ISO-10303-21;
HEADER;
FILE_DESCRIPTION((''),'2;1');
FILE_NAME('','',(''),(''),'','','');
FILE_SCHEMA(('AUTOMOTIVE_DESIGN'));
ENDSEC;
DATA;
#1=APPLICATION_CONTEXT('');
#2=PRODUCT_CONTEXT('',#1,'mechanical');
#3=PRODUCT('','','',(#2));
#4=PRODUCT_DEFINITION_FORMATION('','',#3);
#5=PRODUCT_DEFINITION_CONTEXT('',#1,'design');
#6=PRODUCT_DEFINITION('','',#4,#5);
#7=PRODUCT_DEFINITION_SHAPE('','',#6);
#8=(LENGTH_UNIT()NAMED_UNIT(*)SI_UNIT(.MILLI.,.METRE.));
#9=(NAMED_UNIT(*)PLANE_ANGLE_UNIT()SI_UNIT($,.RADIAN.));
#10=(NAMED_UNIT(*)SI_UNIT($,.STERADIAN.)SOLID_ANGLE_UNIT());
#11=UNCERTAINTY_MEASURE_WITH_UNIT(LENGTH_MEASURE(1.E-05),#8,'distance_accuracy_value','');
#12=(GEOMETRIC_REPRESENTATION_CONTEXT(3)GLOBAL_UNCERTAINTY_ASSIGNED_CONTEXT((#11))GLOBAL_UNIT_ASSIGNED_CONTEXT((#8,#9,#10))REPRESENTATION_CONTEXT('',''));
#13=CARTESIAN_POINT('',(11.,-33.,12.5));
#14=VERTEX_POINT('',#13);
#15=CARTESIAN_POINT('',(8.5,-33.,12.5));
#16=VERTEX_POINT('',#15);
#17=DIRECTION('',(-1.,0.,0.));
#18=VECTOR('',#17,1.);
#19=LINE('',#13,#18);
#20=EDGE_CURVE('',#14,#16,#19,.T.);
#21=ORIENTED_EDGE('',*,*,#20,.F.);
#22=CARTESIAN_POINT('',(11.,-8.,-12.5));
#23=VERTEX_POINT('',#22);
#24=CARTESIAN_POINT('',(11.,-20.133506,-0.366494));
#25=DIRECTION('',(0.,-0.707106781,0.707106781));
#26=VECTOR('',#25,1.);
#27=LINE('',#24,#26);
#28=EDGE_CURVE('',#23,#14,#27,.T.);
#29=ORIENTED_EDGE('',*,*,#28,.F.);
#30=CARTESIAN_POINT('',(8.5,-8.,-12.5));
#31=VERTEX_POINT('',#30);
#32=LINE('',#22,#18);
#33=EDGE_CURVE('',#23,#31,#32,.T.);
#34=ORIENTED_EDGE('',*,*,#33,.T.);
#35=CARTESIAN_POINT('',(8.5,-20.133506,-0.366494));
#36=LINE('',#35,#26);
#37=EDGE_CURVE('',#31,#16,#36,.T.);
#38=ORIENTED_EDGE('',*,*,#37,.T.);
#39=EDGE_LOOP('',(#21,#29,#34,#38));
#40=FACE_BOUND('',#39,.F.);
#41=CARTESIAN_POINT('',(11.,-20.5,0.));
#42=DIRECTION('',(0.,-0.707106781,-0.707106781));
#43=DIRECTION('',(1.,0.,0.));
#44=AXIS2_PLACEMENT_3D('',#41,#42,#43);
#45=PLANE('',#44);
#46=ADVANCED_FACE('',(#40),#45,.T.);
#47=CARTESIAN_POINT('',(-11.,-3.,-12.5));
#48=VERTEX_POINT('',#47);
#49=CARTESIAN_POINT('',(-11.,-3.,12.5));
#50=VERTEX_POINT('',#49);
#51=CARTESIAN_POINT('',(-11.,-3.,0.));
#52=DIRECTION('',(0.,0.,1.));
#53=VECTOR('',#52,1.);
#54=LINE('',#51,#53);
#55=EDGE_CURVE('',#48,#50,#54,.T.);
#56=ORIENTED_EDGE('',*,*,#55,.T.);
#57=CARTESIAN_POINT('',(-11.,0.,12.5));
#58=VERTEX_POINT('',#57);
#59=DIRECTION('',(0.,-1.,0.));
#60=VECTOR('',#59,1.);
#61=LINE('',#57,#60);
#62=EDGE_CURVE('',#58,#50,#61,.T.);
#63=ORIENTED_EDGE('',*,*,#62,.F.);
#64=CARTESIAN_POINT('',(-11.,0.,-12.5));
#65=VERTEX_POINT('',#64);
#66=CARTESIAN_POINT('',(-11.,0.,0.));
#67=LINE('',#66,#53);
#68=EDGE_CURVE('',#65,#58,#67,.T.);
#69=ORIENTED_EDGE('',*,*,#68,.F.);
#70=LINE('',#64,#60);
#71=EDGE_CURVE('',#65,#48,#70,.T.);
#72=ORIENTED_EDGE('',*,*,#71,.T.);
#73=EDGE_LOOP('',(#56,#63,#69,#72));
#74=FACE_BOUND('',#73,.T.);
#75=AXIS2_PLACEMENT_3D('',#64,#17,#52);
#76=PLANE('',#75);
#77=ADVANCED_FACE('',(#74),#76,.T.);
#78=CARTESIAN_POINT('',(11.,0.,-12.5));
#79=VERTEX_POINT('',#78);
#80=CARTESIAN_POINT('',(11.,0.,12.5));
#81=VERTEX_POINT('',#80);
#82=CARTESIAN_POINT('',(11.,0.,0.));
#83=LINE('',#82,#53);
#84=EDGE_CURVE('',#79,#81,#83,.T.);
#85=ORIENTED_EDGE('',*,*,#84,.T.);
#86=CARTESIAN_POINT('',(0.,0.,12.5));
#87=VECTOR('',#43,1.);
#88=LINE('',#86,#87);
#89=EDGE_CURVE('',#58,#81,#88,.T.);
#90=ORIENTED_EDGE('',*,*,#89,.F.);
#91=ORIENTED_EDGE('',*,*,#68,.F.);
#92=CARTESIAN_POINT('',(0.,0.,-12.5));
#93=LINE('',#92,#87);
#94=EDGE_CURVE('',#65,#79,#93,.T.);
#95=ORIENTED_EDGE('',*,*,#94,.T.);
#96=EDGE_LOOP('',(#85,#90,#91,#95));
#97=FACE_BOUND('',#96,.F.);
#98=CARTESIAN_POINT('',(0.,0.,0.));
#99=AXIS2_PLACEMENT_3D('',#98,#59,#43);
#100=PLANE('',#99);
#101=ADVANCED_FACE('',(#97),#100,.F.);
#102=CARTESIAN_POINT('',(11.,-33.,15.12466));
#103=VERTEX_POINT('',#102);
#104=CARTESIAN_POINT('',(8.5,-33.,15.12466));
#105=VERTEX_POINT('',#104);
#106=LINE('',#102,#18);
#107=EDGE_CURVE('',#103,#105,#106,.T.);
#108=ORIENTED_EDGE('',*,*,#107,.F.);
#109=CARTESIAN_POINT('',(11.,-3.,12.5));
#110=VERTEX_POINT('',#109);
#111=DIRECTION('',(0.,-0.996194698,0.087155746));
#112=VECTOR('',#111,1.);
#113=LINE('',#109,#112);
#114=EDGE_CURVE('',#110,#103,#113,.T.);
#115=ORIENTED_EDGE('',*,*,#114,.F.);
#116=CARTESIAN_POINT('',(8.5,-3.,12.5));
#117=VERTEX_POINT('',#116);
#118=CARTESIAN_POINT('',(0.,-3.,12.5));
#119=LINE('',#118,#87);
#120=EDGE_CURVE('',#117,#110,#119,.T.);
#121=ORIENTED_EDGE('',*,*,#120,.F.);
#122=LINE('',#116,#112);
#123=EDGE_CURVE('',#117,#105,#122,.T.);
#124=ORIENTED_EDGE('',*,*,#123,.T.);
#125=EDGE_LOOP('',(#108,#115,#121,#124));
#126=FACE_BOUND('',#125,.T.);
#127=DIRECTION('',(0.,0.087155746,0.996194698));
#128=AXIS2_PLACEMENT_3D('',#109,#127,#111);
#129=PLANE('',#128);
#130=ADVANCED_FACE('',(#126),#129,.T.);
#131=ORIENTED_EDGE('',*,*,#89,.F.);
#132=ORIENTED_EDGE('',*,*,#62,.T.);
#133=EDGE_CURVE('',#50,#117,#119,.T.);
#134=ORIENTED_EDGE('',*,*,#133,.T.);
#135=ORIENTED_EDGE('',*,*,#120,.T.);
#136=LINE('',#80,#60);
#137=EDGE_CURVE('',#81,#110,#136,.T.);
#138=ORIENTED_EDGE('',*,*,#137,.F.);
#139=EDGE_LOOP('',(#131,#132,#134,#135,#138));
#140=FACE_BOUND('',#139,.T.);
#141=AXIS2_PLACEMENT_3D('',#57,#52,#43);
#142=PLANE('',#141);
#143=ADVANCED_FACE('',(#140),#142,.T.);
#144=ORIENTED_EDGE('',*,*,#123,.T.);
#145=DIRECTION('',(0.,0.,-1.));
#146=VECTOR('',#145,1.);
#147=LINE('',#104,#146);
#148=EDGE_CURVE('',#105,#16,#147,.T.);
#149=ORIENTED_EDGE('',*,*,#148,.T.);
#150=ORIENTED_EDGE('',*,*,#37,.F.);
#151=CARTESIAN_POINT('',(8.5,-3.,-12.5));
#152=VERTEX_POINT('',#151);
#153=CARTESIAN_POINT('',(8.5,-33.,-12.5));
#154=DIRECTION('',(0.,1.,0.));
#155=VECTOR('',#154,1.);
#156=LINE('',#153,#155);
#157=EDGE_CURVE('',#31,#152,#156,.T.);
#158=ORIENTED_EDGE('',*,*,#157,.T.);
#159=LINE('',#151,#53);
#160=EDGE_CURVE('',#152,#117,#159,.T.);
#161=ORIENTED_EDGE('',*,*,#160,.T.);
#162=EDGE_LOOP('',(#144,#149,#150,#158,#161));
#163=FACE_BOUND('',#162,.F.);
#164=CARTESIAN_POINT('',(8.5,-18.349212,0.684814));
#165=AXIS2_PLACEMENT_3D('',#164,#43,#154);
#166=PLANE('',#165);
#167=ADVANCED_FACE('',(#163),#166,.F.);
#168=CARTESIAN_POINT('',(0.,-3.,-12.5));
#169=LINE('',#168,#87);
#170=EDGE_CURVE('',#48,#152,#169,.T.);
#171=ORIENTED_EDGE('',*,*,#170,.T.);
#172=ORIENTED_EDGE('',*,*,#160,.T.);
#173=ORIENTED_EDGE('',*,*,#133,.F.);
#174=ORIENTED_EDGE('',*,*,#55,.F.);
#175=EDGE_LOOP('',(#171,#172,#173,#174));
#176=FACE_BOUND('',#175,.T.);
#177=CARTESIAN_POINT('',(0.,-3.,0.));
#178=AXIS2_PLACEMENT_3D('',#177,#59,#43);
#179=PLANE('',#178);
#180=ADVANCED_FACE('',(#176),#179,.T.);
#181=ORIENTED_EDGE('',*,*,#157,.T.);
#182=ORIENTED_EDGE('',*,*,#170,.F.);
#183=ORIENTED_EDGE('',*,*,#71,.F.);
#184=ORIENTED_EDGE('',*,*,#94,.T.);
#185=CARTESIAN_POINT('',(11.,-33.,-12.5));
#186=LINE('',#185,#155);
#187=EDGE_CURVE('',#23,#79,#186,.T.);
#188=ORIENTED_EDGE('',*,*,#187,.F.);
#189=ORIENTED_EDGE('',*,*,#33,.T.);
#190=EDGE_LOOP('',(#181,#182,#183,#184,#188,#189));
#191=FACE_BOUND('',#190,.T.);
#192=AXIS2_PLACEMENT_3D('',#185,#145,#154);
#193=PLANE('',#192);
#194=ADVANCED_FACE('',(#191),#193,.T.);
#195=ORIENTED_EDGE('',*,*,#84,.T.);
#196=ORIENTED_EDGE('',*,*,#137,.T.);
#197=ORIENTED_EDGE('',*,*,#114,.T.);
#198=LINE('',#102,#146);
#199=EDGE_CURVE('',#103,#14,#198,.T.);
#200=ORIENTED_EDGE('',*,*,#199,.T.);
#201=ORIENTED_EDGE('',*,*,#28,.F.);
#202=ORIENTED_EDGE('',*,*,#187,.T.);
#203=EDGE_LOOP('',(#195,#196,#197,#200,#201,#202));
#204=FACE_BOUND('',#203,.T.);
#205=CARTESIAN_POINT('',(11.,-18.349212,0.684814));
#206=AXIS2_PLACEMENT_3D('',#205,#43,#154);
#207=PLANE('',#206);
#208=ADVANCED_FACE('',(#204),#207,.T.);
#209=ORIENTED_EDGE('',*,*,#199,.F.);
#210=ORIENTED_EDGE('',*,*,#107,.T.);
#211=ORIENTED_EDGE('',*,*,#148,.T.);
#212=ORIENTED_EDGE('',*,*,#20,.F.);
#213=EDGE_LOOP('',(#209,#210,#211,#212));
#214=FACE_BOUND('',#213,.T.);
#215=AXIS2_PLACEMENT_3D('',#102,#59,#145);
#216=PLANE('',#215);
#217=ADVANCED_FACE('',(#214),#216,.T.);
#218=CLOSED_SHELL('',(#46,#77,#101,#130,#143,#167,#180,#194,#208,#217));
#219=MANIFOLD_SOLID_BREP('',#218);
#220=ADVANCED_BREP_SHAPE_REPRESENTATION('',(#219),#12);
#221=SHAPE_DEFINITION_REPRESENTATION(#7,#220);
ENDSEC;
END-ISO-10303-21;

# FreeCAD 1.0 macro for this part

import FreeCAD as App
import Part
import Sketcher
Q = App.Units.Quantity


def edges_at(feature, points):
    """Names of the edges that pass closest to the given points."""
    edges = feature.Shape.Edges
    near = lambda p: min(range(len(edges)), key=lambda i: edges[i].distToShape(Part.Vertex(*p))[0])
    return sorted({f"Edge{near(p) + 1}" for p in points})

doc = App.newDocument("Part")
body = doc.addObject("PartDesign::Body", "Body")

# Sketch on XZ plane
sketch1 = doc.addObject("Sketcher::SketchObject", "Sketch")
body.addObject(sketch1)
sketch1.AttachmentSupport = (doc.XZ_Plane, [""])
sketch1.MapMode = "FlatFace"
sketch1.addGeometry([
    Part.LineSegment(App.Vector(-11, 12, 0), App.Vector(-11, -12, 0)),
    Part.LineSegment(App.Vector(-11, -12, 0), App.Vector(11, -12, 0)),
    Part.LineSegment(App.Vector(11, -12, 0), App.Vector(11, 12, 0)),
    Part.LineSegment(App.Vector(11, 12, 0), App.Vector(-11, 12, 0)),
], False)
sketch1.addConstraint([
    Sketcher.Constraint("Coincident", 0, 2, 1, 1),
    Sketcher.Constraint("Coincident", 1, 2, 2, 1),
    Sketcher.Constraint("Coincident", 2, 2, 3, 1),
    Sketcher.Constraint("Coincident", 3, 2, 0, 1),
    Sketcher.Constraint("Vertical", 0),
    Sketcher.Constraint("Horizontal", 1),
    Sketcher.Constraint("Vertical", 2),
    Sketcher.Constraint("Horizontal", 3),
    Sketcher.Constraint("Symmetric", 0, 2, 2, 2, -1, 1),
    Sketcher.Constraint("DistanceX", 1, 1, 1, 2, Q("22 mm")),
    Sketcher.Constraint("DistanceY", 0, 2, 0, 1, Q("25 mm")),
])
pad1 = doc.addObject("PartDesign::Pad", "Pad")
body.addObject(pad1)
pad1.Profile = sketch1
pad1.Length = 3

# Sketch on YZ plane
sketch2 = doc.addObject("Sketcher::SketchObject", "Sketch001")
body.addObject(sketch2)
sketch2.AttachmentSupport = (doc.YZ_Plane, [""])
sketch2.MapMode = "FlatFace"
sketch2.AttachmentOffset = App.Placement(App.Vector(0, 0, 11), App.Rotation())
sketch2.addGeometry([
    Part.LineSegment(App.Vector(-3, -12, 0), App.Vector(-3, 12, 0)),
    Part.LineSegment(App.Vector(-3, 12, 0), App.Vector(-33, 15, 0)),
    Part.LineSegment(App.Vector(-33, 15, 0), App.Vector(-33, -12, 0)),
    Part.LineSegment(App.Vector(-33, -12, 0), App.Vector(-3, -12, 0)),
], False)
sketch2.addConstraint([
    Sketcher.Constraint("Coincident", 0, 2, 1, 1),
    Sketcher.Constraint("Coincident", 1, 2, 2, 1),
    Sketcher.Constraint("Coincident", 2, 2, 3, 1),
    Sketcher.Constraint("Coincident", 3, 2, 0, 1),
    Sketcher.Constraint("Vertical", 0),
    Sketcher.Constraint("Vertical", 2),
    Sketcher.Constraint("Horizontal", 3),
    Sketcher.Constraint("DistanceX", 3, 1, 3, 2, Q("30 mm")),
    Sketcher.Constraint("DistanceY", 0, 1, 0, 2, Q("25 mm")),
    Sketcher.Constraint("Angle", 1, Q("175 deg")),
    Sketcher.Constraint("DistanceX", 0, 2, -1, 1, Q("3 mm")),
    Sketcher.Constraint("DistanceY", -1, 1, 0, 2, Q("12.5 mm")),
])
pad2 = doc.addObject("PartDesign::Pad", "Pad001")
body.addObject(pad2)
pad2.Profile = sketch2
pad2.Length = 2.5
pad2.Reversed = True
doc.recompute()

chamfer = doc.addObject("PartDesign::Chamfer", "Chamfer")
body.addObject(chamfer)
chamfer.Base = (pad2, edges_at(pad2, [(9.75, -33, -12.5)]))
chamfer.Size = 25

doc.recompute()
